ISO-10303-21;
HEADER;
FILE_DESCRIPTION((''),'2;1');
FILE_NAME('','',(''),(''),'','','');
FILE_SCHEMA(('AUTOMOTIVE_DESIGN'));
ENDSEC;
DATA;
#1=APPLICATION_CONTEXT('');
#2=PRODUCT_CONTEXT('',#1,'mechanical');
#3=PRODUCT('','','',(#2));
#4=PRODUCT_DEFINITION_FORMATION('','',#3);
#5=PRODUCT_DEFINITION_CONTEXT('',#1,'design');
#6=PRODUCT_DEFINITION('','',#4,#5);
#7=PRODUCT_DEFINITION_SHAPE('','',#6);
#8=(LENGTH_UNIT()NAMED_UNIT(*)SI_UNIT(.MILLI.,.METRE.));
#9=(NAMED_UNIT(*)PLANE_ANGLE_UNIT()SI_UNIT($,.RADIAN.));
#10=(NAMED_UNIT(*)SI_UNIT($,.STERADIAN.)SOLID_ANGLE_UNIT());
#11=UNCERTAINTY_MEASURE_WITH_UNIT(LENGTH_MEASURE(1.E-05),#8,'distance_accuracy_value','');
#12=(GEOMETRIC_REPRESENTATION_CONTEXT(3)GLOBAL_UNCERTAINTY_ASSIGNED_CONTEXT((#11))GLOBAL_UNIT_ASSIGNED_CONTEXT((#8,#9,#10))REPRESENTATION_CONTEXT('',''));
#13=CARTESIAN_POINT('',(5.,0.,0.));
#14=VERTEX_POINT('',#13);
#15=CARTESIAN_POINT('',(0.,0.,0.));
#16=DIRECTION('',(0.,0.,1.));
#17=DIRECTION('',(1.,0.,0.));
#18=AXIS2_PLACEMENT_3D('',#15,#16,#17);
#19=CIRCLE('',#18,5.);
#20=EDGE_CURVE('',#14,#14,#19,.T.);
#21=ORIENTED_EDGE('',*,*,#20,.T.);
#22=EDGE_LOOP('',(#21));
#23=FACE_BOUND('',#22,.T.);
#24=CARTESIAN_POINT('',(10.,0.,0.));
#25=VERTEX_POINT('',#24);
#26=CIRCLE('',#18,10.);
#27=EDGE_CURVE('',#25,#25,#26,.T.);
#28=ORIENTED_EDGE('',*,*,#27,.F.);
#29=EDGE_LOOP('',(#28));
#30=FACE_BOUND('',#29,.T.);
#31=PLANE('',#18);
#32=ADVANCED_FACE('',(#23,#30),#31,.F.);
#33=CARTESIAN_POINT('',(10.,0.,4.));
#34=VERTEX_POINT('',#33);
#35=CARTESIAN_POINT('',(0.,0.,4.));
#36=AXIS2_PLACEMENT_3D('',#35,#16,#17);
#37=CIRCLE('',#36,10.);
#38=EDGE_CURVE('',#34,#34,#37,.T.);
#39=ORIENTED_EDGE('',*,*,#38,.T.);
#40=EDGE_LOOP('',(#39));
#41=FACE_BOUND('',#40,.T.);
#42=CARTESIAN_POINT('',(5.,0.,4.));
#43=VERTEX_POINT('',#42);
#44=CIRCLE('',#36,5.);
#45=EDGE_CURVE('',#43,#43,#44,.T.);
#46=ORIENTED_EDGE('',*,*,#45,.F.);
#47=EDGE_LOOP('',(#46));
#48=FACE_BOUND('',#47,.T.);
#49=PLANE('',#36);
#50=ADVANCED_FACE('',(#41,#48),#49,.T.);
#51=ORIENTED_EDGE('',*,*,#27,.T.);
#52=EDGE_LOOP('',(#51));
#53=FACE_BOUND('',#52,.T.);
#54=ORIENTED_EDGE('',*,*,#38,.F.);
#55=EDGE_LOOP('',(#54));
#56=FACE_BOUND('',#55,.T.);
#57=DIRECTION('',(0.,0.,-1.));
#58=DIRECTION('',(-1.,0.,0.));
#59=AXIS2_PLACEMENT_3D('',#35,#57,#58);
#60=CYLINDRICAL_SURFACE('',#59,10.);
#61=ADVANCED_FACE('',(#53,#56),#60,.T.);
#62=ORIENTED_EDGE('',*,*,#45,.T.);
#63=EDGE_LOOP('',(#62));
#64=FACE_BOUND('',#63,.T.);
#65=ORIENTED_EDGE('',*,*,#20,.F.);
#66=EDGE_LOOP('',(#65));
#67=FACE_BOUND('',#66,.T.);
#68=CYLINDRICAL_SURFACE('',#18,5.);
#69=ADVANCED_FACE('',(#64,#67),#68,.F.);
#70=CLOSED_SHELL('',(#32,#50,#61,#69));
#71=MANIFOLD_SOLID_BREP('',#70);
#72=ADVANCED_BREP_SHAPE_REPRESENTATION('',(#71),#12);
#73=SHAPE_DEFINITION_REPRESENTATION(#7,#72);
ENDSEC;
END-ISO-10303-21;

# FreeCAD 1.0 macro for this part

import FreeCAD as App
import Part
import Sketcher

doc = App.newDocument("Part")
body = doc.addObject("PartDesign::Body", "Body")

# Sketch on XY plane
sketch1 = body.newObject("Sketcher::SketchObject", "Sketch")
sketch1.AttachmentSupport = (doc.getObject("XY_Plane"), [""])
sketch1.MapMode = "FlatFace"
sketch1.addGeometry(Part.Circle(App.Vector(0, 0, 0), App.Vector(0, 0, 1), 10), False)
sketch1.addConstraint(Sketcher.Constraint("Coincident", 0, 3, -1, 1))
sketch1.addConstraint(Sketcher.Constraint("Diameter", 0, 20.0))
pad1 = body.newObject("PartDesign::Pad", "Pad")
pad1.Profile = sketch1
pad1.Length = 4

# Sketch on XY plane
sketch2 = body.newObject("Sketcher::SketchObject", "Sketch001")
sketch2.AttachmentSupport = (doc.getObject("XY_Plane"), [""])
sketch2.MapMode = "FlatFace"
sketch2.AttachmentOffset = App.Placement(App.Vector(0, 0, 4), App.Rotation())
sketch2.addGeometry(Part.Circle(App.Vector(0, 0, 0), App.Vector(0, 0, 1), 5), False)
sketch2.addConstraint(Sketcher.Constraint("Coincident", 0, 3, -1, 1))
sketch2.addConstraint(Sketcher.Constraint("Diameter", 0, 10.0))
pocket1 = body.newObject("PartDesign::Pocket", "Pocket")
pocket1.Profile = sketch2
pocket1.Length = 4

doc.recompute()
